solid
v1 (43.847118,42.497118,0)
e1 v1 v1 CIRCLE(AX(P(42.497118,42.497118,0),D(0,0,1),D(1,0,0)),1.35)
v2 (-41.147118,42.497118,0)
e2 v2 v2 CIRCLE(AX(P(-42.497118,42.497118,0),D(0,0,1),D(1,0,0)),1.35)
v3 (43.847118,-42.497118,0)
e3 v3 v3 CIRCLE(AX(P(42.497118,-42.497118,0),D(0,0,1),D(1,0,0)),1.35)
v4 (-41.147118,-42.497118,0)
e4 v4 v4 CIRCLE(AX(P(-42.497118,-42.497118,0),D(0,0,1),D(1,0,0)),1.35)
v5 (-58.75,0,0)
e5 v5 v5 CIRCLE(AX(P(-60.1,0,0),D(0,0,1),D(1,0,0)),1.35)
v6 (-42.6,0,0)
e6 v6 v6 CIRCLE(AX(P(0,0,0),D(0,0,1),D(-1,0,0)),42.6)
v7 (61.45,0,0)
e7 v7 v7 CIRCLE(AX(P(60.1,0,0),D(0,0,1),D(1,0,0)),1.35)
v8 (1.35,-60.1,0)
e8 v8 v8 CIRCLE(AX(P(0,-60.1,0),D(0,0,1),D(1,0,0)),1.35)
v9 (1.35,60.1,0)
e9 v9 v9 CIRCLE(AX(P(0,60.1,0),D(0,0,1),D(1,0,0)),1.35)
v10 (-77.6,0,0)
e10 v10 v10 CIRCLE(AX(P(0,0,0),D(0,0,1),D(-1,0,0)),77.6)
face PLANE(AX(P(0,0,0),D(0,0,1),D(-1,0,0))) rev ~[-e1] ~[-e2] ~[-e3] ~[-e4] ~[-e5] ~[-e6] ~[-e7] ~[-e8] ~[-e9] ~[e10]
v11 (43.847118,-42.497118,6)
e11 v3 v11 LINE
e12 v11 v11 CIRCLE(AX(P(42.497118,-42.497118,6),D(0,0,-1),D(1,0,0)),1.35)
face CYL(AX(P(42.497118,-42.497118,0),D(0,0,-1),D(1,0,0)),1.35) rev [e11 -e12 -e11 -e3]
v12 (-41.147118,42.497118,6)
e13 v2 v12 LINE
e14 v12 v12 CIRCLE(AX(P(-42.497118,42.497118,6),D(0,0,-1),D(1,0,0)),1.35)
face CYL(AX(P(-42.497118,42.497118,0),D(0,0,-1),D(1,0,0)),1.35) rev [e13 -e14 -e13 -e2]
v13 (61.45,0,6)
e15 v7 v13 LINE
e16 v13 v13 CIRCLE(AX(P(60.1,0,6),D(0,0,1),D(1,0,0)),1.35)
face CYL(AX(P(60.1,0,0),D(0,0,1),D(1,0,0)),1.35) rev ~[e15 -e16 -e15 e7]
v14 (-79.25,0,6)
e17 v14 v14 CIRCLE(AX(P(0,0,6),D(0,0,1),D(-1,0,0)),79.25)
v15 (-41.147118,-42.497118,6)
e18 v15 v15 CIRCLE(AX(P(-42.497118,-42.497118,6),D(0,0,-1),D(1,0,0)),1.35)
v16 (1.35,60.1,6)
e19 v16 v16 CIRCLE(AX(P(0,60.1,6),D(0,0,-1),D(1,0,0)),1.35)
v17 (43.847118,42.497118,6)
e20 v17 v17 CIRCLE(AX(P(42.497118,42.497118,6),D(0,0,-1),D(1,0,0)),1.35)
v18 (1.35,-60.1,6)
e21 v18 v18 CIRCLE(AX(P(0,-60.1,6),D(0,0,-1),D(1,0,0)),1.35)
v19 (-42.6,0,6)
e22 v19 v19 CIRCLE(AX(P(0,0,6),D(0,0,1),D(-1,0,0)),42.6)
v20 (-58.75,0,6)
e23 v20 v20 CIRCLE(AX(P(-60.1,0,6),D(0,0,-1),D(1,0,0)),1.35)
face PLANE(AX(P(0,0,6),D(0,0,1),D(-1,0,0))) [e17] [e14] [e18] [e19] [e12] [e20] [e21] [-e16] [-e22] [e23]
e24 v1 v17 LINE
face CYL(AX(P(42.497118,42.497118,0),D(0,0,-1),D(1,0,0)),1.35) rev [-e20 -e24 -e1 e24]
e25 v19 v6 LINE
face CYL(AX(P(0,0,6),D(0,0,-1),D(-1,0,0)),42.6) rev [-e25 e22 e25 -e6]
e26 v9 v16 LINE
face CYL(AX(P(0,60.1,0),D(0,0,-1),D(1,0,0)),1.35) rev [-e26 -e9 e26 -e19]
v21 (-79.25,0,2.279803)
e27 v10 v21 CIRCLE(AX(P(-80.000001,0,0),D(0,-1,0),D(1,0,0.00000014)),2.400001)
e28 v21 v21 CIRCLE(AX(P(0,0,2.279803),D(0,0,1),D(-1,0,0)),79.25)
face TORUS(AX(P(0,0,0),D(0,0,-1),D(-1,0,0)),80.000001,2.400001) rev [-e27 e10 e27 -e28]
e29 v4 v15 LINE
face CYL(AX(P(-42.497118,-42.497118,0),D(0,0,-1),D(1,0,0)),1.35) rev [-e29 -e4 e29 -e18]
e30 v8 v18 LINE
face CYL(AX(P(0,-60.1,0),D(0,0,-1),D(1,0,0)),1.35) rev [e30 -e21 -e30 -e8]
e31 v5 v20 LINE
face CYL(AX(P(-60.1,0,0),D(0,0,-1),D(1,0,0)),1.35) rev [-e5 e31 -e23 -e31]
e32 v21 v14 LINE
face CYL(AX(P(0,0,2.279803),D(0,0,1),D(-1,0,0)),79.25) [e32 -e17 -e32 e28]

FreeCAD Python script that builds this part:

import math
import FreeCAD as App
import Part
import Sketcher

doc = App.newDocument("Part")
body = doc.addObject("PartDesign::Body", "Body")
body.AllowCompound = True

# Sketch on XY plane
sketch1 = doc.addObject("Sketcher::SketchObject", "Sketch")
body.addObject(sketch1)
sketch1.AttachmentSupport = (doc.XY_Plane, [""])
sketch1.MapMode = "FlatFace"
sketch1.addGeometry(Part.Circle(App.Vector(42.5, 42.5, 0), App.Vector(0, 0, 1), 1.4), False)
sketch1.addGeometry(Part.Circle(App.Vector(0, 60.1, 0), App.Vector(0, 0, 1), 1.4), False)
sketch1.addGeometry(Part.Circle(App.Vector(-42.5, 42.5, 0), App.Vector(0, 0, 1), 1.4), False)
sketch1.addGeometry(Part.Circle(App.Vector(-60.1, 0, 0), App.Vector(0, 0, 1), 1.4), False)
sketch1.addGeometry(Part.Circle(App.Vector(-42.5, -42.5, 0), App.Vector(0, 0, 1), 1.4), False)
sketch1.addGeometry(Part.Circle(App.Vector(0, -60.1, 0), App.Vector(0, 0, 1), 1.4), False)
sketch1.addGeometry(Part.Circle(App.Vector(42.5, -42.5, 0), App.Vector(0, 0, 1), 1.4), False)
sketch1.addGeometry(Part.Circle(App.Vector(60.1, 0, 0), App.Vector(0, 0, 1), 1.4), False)
sketch1.addConstraint(Sketcher.Constraint("Equal", 0, 1))
sketch1.addConstraint(Sketcher.Constraint("Equal", 1, 2))
sketch1.addConstraint(Sketcher.Constraint("Equal", 2, 3))
sketch1.addConstraint(Sketcher.Constraint("Equal", 3, 4))
sketch1.addConstraint(Sketcher.Constraint("Equal", 4, 5))
sketch1.addConstraint(Sketcher.Constraint("Equal", 5, 6))
sketch1.addConstraint(Sketcher.Constraint("Equal", 6, 7))
sketch1.addConstraint(Sketcher.Constraint("Symmetric", 0, 3, 4, 3, -1, 1))
sketch1.addConstraint(Sketcher.Constraint("Symmetric", 1, 3, 5, 3, -1, 1))
sketch1.addConstraint(Sketcher.Constraint("Symmetric", 2, 3, 6, 3, -1, 1))
sketch1.addConstraint(Sketcher.Constraint("Symmetric", 3, 3, 7, 3, -1, 1))
sketch1.addConstraint(Sketcher.Constraint("Symmetric", 0, 3, 2, 3, -2))
sketch1.addConstraint(Sketcher.Constraint("PointOnObject", 1, 3, -2))
sketch1.addConstraint(Sketcher.Constraint("PointOnObject", 3, 3, -1))
sketch1.addConstraint(Sketcher.Constraint("Diameter", 0, 2.7))
sketch1.addConstraint(Sketcher.Constraint("DistanceY", -1, 1, 1, 3, 60.1))
sketch1.addConstraint(Sketcher.Constraint("DistanceX", 3, 3, -1, 1, 60.1))
sketch1.addConstraint(Sketcher.Constraint("DistanceX", -1, 1, 0, 3, 42.497118))
sketch1.addConstraint(Sketcher.Constraint("DistanceY", -1, 1, 0, 3, 42.497118))
pad1 = doc.addObject("PartDesign::Pad", "Pad")
body.addObject(pad1)
pad1.Profile = sketch1
pad1.Length = 60
pad1.Midplane = True
body2 = doc.addObject("PartDesign::Body", "Body001")

# Sketch on XZ plane
sketch2 = doc.addObject("Sketcher::SketchObject", "Sketch001")
body2.addObject(sketch2)
sketch2.AttachmentSupport = (doc.getObject("XZ_Plane001"), [""])
sketch2.MapMode = "FlatFace"
sketch2.addGeometry(Part.ArcOfCircle(Part.Circle(App.Vector(-80, 0, 0), App.Vector(0, 0, 1), 2.4), math.radians(0), math.radians(72)), False)
sketch2.addGeometry(Part.LineSegment(App.Vector(-77.6, 0, 0), App.Vector(-42.6, 0, 0)), False)
sketch2.addGeometry(Part.LineSegment(App.Vector(-42.6, 0, 0), App.Vector(-42.6, 6, 0)), False)
sketch2.addGeometry(Part.LineSegment(App.Vector(-42.6, 6, 0), App.Vector(-79.2, 6, 0)), False)
sketch2.addGeometry(Part.LineSegment(App.Vector(-79.2, 6, 0), App.Vector(-79.2, 2.3, 0)), False)
sketch2.addConstraint(Sketcher.Constraint("Coincident", 0, 1, 1, 1))
sketch2.addConstraint(Sketcher.Constraint("Coincident", 1, 2, 2, 1))
sketch2.addConstraint(Sketcher.Constraint("Coincident", 2, 2, 3, 1))
sketch2.addConstraint(Sketcher.Constraint("Coincident", 3, 2, 4, 1))
sketch2.addConstraint(Sketcher.Constraint("Coincident", 4, 2, 0, 2))
sketch2.addConstraint(Sketcher.Constraint("Horizontal", 1))
sketch2.addConstraint(Sketcher.Constraint("Vertical", 2))
sketch2.addConstraint(Sketcher.Constraint("Horizontal", 3))
sketch2.addConstraint(Sketcher.Constraint("Vertical", 4))
sketch2.addConstraint(Sketcher.Constraint("PointOnObject", 0, 3, -1))
sketch2.addConstraint(Sketcher.Constraint("PointOnObject", 0, 1, -1))
sketch2.addConstraint(Sketcher.Constraint("Radius", 0, 2.400001))
sketch2.addConstraint(Sketcher.Constraint("DistanceX", 1, 1, 1, 2, 35.0))
sketch2.addConstraint(Sketcher.Constraint("DistanceY", 2, 1, 2, 2, 6.0))
sketch2.addConstraint(Sketcher.Constraint("DistanceX", 0, 3, -1, 1, 80.000001))
sketch2.addConstraint(Sketcher.Constraint("DistanceX", 3, 2, 3, 1, 36.65))
revolution = doc.addObject("PartDesign::Revolution", "Revolution")
body2.addObject(revolution)
revolution.Profile = sketch2
revolution.ReferenceAxis = (sketch2, ["V_Axis"])
revolution.Angle = 360
doc.recompute()

boolean = doc.addObject("PartDesign::Boolean", "Boolean")
body2.addObject(boolean)
boolean.Type = "Cut"
boolean.addObjects([body])

doc.recompute()
